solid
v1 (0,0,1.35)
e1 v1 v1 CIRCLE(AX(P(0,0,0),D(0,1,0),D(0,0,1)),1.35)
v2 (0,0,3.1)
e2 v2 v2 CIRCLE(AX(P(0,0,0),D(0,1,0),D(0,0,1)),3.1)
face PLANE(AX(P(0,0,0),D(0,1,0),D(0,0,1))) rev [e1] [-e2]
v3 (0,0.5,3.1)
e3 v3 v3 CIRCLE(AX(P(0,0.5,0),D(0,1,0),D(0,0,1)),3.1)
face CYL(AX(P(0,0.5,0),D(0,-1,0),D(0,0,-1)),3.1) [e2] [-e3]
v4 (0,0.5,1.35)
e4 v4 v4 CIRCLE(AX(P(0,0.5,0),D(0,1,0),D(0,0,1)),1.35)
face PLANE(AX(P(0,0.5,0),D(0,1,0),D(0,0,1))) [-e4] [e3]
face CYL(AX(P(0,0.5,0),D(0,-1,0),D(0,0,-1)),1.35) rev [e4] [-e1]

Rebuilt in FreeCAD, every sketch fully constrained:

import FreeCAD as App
import Part
import Sketcher
from FreeCAD import Vector

doc = App.newDocument("Part")
body = doc.addObject("PartDesign::Body", "Body")

sketch1 = body.newObject("Sketcher::SketchObject", "Sketch")
sketch1.AttachmentSupport = (doc.getObject("XZ_Plane"), [""])
sketch1.MapMode = "FlatFace"
sketch1.addGeometry(Part.Circle(Vector(0, 0, 0), Vector(0, 0, 1), 3.1), False)
sketch1.addGeometry(Part.Circle(Vector(0, 0, 0), Vector(0, 0, 1), 1.4), False)
sketch1.addConstraint(Sketcher.Constraint("Coincident", 0, 3, -1, 1))
sketch1.addConstraint(Sketcher.Constraint("Coincident", 1, 3, -1, 1))
sketch1.addConstraint(Sketcher.Constraint("Diameter", 0, 6.2))
sketch1.addConstraint(Sketcher.Constraint("Diameter", 1, 2.7))
pad1 = body.newObject("PartDesign::Pad", "Pad")
pad1.Profile = sketch1
pad1.Length = 0.5
pad1.Reversed = True

doc.recompute()
